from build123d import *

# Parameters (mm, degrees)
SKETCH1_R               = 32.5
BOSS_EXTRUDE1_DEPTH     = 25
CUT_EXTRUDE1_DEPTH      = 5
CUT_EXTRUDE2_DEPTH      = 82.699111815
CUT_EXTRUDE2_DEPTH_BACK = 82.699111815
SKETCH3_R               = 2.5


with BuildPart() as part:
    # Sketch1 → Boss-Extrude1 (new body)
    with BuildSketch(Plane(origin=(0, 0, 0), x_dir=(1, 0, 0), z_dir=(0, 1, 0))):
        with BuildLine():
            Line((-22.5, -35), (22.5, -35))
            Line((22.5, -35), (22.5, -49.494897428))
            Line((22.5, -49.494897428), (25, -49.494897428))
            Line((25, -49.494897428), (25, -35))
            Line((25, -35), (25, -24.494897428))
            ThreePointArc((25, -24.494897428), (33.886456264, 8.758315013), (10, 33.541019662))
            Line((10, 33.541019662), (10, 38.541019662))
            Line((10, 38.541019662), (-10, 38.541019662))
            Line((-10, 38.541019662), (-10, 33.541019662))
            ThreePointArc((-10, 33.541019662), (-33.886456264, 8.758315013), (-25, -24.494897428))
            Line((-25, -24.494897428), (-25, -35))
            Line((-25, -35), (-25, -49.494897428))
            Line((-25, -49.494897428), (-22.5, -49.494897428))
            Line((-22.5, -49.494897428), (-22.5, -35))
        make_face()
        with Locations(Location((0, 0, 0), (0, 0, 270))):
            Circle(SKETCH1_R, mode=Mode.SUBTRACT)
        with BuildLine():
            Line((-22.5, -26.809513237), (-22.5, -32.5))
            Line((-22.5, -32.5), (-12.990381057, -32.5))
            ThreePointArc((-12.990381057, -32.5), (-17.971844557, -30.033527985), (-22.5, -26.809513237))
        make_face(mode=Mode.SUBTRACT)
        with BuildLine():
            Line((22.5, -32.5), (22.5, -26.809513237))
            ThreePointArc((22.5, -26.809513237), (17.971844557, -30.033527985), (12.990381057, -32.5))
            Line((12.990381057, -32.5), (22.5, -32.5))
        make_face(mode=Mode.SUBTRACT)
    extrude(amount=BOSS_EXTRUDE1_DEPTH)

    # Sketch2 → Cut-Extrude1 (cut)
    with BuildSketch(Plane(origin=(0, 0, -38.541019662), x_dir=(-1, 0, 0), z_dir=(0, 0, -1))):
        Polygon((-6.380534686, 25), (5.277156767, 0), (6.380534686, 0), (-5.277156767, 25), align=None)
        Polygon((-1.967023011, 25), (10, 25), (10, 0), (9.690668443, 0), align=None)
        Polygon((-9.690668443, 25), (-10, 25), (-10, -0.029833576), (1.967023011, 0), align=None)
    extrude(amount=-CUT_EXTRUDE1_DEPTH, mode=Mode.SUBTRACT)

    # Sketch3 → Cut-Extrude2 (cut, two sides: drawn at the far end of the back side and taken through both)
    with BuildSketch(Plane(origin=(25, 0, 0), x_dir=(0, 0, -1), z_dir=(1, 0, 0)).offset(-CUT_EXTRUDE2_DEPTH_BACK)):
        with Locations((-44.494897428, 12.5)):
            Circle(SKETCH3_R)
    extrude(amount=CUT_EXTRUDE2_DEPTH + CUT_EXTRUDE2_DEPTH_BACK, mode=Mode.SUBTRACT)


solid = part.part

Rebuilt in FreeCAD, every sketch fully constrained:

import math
import FreeCAD as App
import Part
import Sketcher
Q = App.Units.Quantity

doc = App.newDocument("Part")
body = doc.addObject("PartDesign::Body", "Body")

sketch1 = body.newObject("Sketcher::SketchObject", "Sketch")
sketch1.AttachmentSupport = (doc.getObject("XZ_Plane"), [""])
sketch1.MapMode = "FlatFace"
sketch1.addGeometry([
    Part.LineSegment(App.Vector(-22.5, 35, 0), App.Vector(22.5, 35, 0)),
    Part.LineSegment(App.Vector(22.5, 35, 0), App.Vector(22.5, 49.494897, 0)),
    Part.LineSegment(App.Vector(22.5, 49.494897, 0), App.Vector(25, 49.494897, 0)),
    Part.LineSegment(App.Vector(25, 49.494897, 0), App.Vector(25, 24.494897, 0)),
    Part.ArcOfCircle(Part.Circle(App.Vector(0, 0, 0), App.Vector(0, 0, 1), 35), math.radians(-73.39845), math.radians(44.415309)),
    Part.LineSegment(App.Vector(10, -33.54102, 0), App.Vector(10, -38.54102, 0)),
    Part.LineSegment(App.Vector(10, -38.54102, 0), App.Vector(-10, -38.54102, 0)),
    Part.LineSegment(App.Vector(-10, -38.54102, 0), App.Vector(-10, -33.54102, 0)),
    Part.ArcOfCircle(Part.Circle(App.Vector(0, 0, 0), App.Vector(0, 0, 1), 35), math.radians(135.584691), math.radians(253.39845)),
    Part.LineSegment(App.Vector(-25, 24.494897, 0), App.Vector(-25, 49.494897, 0)),
    Part.LineSegment(App.Vector(-25, 49.494897, 0), App.Vector(-22.5, 49.494897, 0)),
    Part.LineSegment(App.Vector(-22.5, 49.494897, 0), App.Vector(-22.5, 35, 0)),
    Part.LineSegment(App.Vector(-22.5, 32.5, 0), App.Vector(-22.5, 26.809513, 0)),
    Part.ArcOfCircle(Part.Circle(App.Vector(0, 0, 0), App.Vector(0, 0, 1), 35), math.radians(111.786789), math.radians(130.005201)),
    Part.LineSegment(App.Vector(-12.990381, 32.5, 0), App.Vector(-22.5, 32.5, 0)),
    Part.LineSegment(App.Vector(22.5, 26.809513, 0), App.Vector(22.5, 32.5, 0)),
    Part.LineSegment(App.Vector(22.5, 32.5, 0), App.Vector(12.990381, 32.5, 0)),
    Part.ArcOfCircle(Part.Circle(App.Vector(0, 0, 0), App.Vector(0, 0, 1), 35), math.radians(49.994799), math.radians(68.213211)),
    Part.Circle(App.Vector(0, 0, 0), App.Vector(0, 0, 1), 32.5),
], False)
sketch1.addConstraint([
    Sketcher.Constraint("Coincident", 0, 2, 1, 1),
    Sketcher.Constraint("Coincident", 1, 2, 2, 1),
    Sketcher.Constraint("Coincident", 2, 2, 3, 1),
    Sketcher.Constraint("Coincident", 3, 2, 4, 2),
    Sketcher.Constraint("Coincident", 4, 1, 5, 1),
    Sketcher.Constraint("Coincident", 5, 2, 6, 1),
    Sketcher.Constraint("Coincident", 6, 2, 7, 1),
    Sketcher.Constraint("Coincident", 7, 2, 8, 2),
    Sketcher.Constraint("Coincident", 8, 1, 9, 1),
    Sketcher.Constraint("Coincident", 9, 2, 10, 1),
    Sketcher.Constraint("Coincident", 10, 2, 11, 1),
    Sketcher.Constraint("Coincident", 11, 2, 0, 1),
    Sketcher.Constraint("Coincident", 12, 2, 13, 2),
    Sketcher.Constraint("Coincident", 13, 1, 14, 1),
    Sketcher.Constraint("Coincident", 14, 2, 12, 1),
    Sketcher.Constraint("Coincident", 15, 2, 16, 1),
    Sketcher.Constraint("Coincident", 16, 2, 17, 2),
    Sketcher.Constraint("Coincident", 17, 1, 15, 1),
    Sketcher.Constraint("Horizontal", 0),
    Sketcher.Constraint("Vertical", 1),
    Sketcher.Constraint("Horizontal", 2),
    Sketcher.Constraint("Vertical", 3),
    Sketcher.Constraint("Vertical", 5),
    Sketcher.Constraint("Horizontal", 6),
    Sketcher.Constraint("Vertical", 7),
    Sketcher.Constraint("Vertical", 9),
    Sketcher.Constraint("Horizontal", 10),
    Sketcher.Constraint("Vertical", 11),
    Sketcher.Constraint("Vertical", 12),
    Sketcher.Constraint("Horizontal", 14),
    Sketcher.Constraint("Vertical", 15),
    Sketcher.Constraint("Horizontal", 16),
    Sketcher.Constraint("Coincident", 4, 3, -1, 1),
    Sketcher.Constraint("Coincident", 8, 3, -1, 1),
    Sketcher.Constraint("Coincident", 13, 3, -1, 1),
    Sketcher.Constraint("Coincident", 17, 3, -1, 1),
    Sketcher.Constraint("Coincident", 18, 3, -1, 1),
    Sketcher.Constraint("Equal", 4, 8),
    Sketcher.Constraint("Equal", 8, 13),
    Sketcher.Constraint("Equal", 13, 17),
    Sketcher.Constraint("Symmetric", 2, 2, 9, 2, -2),
    Sketcher.Constraint("Symmetric", 14, 2, 15, 2, -2),
    Sketcher.Constraint("Horizontal", 4, 1, 7, 2),
    Sketcher.Constraint("Vertical", 11, 2, 12, 2),
    Sketcher.Constraint("Vertical", 1, 2, 15, 2),
    Sketcher.Constraint("Diameter", 18, Q("65 mm")),
    Sketcher.Constraint("Radius", 4, Q("35 mm")),
    Sketcher.Constraint("DistanceX", 0, 1, 0, 2, Q("45 mm")),
    Sketcher.Constraint("DistanceX", 6, 2, 6, 1, Q("20 mm")),
    Sketcher.Constraint("DistanceY", 3, 2, 3, 1, Q("25 mm")),
    Sketcher.Constraint("DistanceY", 5, 2, 5, 1, Q("5 mm")),
    Sketcher.Constraint("DistanceX", 2, 1, 2, 2, Q("2.5 mm")),
    Sketcher.Constraint("DistanceY", -1, 1, 0, 2, Q("35 mm")),
    Sketcher.Constraint("DistanceY", -1, 1, 13, 1, Q("32.5 mm")),
])
pad1 = body.newObject("PartDesign::Pad", "Pad")
pad1.Profile = sketch1
pad1.Length = 25
pad1.Reversed = True

sketch2 = body.newObject("Sketcher::SketchObject", "Sketch001")
sketch2.AttachmentSupport = (doc.getObject("XY_Plane"), [""])
sketch2.MapMode = "FlatFace"
sketch2.AttachmentOffset = App.Placement(App.Vector(0, 0, -38.54102), App.Rotation())
sketch2.addGeometry([
    Part.LineSegment(App.Vector(6.380535, 25, 0), App.Vector(-5.277157, 0, 0)),
    Part.LineSegment(App.Vector(-5.277157, 0, 0), App.Vector(-6.380535, 0, 0)),
    Part.LineSegment(App.Vector(-6.380535, 0, 0), App.Vector(5.277157, 25, 0)),
    Part.LineSegment(App.Vector(5.277157, 25, 0), App.Vector(6.380535, 25, 0)),
    Part.LineSegment(App.Vector(-10, 25, 0), App.Vector(1.967023, 25, 0)),
    Part.LineSegment(App.Vector(1.967023, 25, 0), App.Vector(-9.690668, 0, 0)),
    Part.LineSegment(App.Vector(-9.690668, 0, 0), App.Vector(-10, 0, 0)),
    Part.LineSegment(App.Vector(-10, 0, 0), App.Vector(-10, 25, 0)),
    Part.LineSegment(App.Vector(9.690668, 25, 0), App.Vector(10, 25, 0)),
    Part.LineSegment(App.Vector(10, 25, 0), App.Vector(10, -0.029834, 0)),
    Part.LineSegment(App.Vector(10, -0.029834, 0), App.Vector(-1.967023, 0, 0)),
    Part.LineSegment(App.Vector(-1.967023, 0, 0), App.Vector(9.690668, 25, 0)),
], False)
sketch2.addConstraint([
    Sketcher.Constraint("Coincident", 0, 2, 1, 1),
    Sketcher.Constraint("Coincident", 1, 2, 2, 1),
    Sketcher.Constraint("Coincident", 2, 2, 3, 1),
    Sketcher.Constraint("Coincident", 3, 2, 0, 1),
    Sketcher.Constraint("Coincident", 4, 2, 5, 1),
    Sketcher.Constraint("Coincident", 5, 2, 6, 1),
    Sketcher.Constraint("Coincident", 6, 2, 7, 1),
    Sketcher.Constraint("Coincident", 7, 2, 4, 1),
    Sketcher.Constraint("Coincident", 8, 2, 9, 1),
    Sketcher.Constraint("Coincident", 9, 2, 10, 1),
    Sketcher.Constraint("Coincident", 10, 2, 11, 1),
    Sketcher.Constraint("Coincident", 11, 2, 8, 1),
    Sketcher.Constraint("Horizontal", 1),
    Sketcher.Constraint("Horizontal", 3),
    Sketcher.Constraint("Horizontal", 4),
    Sketcher.Constraint("Horizontal", 6),
    Sketcher.Constraint("Vertical", 7),
    Sketcher.Constraint("Horizontal", 8),
    Sketcher.Constraint("Vertical", 9),
    Sketcher.Constraint("Symmetric", 7, 2, 8, 2, -2),
    Sketcher.Constraint("PointOnObject", 0, 2, -1),
    Sketcher.Constraint("PointOnObject", 5, 2, -1),
    Sketcher.Constraint("PointOnObject", 10, 2, -1),
    Sketcher.Constraint("Parallel", 0, 2),
    Sketcher.Constraint("Parallel", 2, 5),
    Sketcher.Constraint("Parallel", 5, 11),
    Sketcher.Constraint("Horizontal", 3, 2, 4, 2),
    Sketcher.Constraint("Equal", 6, 8),
    Sketcher.Constraint("DistanceY", 7, 1, 7, 2, Q("25 mm")),
    Sketcher.Constraint("Angle", 0, Q("-115 deg")),
    Sketcher.Constraint("DistanceX", 6, 2, -1, 1, Q("10 mm")),
    Sketcher.Constraint("DistanceX", 6, 2, 6, 1, Q("0.309332 mm")),
    Sketcher.Constraint("DistanceX", 1, 2, 1, 1, Q("1.103378 mm")),
    Sketcher.Constraint("DistanceY", 9, 2, 9, 1, Q("25.029834 mm")),
    Sketcher.Constraint("DistanceX", 4, 2, 3, 2, Q("4.413512 mm")),
])
pocket1 = body.newObject("PartDesign::Pocket", "Pocket")
pocket1.Profile = sketch2
pocket1.Length = 5
pocket1.Reversed = True

sketch3 = body.newObject("Sketcher::SketchObject", "Sketch002")
sketch3.AttachmentSupport = (doc.getObject("YZ_Plane"), [""])
sketch3.MapMode = "FlatFace"
sketch3.AttachmentOffset = App.Placement(App.Vector(0, 0, 25), App.Rotation())
sketch3.addGeometry(Part.Circle(App.Vector(12.5, 44.494897, 0), App.Vector(0, 0, 1), 2.5), False)
sketch3.addConstraint([
    Sketcher.Constraint("Diameter", 0, Q("5 mm")),
    Sketcher.Constraint("DistanceX", -1, 1, 0, 3, Q("12.5 mm")),
    Sketcher.Constraint("DistanceY", -1, 1, 0, 3, Q("44.494897 mm")),
])
pocket2 = body.newObject("PartDesign::Pocket", "Pocket001")
pocket2.Profile = sketch3
pocket2.Type = "ThroughAll"
pocket2.Midplane = True

doc.recompute()
